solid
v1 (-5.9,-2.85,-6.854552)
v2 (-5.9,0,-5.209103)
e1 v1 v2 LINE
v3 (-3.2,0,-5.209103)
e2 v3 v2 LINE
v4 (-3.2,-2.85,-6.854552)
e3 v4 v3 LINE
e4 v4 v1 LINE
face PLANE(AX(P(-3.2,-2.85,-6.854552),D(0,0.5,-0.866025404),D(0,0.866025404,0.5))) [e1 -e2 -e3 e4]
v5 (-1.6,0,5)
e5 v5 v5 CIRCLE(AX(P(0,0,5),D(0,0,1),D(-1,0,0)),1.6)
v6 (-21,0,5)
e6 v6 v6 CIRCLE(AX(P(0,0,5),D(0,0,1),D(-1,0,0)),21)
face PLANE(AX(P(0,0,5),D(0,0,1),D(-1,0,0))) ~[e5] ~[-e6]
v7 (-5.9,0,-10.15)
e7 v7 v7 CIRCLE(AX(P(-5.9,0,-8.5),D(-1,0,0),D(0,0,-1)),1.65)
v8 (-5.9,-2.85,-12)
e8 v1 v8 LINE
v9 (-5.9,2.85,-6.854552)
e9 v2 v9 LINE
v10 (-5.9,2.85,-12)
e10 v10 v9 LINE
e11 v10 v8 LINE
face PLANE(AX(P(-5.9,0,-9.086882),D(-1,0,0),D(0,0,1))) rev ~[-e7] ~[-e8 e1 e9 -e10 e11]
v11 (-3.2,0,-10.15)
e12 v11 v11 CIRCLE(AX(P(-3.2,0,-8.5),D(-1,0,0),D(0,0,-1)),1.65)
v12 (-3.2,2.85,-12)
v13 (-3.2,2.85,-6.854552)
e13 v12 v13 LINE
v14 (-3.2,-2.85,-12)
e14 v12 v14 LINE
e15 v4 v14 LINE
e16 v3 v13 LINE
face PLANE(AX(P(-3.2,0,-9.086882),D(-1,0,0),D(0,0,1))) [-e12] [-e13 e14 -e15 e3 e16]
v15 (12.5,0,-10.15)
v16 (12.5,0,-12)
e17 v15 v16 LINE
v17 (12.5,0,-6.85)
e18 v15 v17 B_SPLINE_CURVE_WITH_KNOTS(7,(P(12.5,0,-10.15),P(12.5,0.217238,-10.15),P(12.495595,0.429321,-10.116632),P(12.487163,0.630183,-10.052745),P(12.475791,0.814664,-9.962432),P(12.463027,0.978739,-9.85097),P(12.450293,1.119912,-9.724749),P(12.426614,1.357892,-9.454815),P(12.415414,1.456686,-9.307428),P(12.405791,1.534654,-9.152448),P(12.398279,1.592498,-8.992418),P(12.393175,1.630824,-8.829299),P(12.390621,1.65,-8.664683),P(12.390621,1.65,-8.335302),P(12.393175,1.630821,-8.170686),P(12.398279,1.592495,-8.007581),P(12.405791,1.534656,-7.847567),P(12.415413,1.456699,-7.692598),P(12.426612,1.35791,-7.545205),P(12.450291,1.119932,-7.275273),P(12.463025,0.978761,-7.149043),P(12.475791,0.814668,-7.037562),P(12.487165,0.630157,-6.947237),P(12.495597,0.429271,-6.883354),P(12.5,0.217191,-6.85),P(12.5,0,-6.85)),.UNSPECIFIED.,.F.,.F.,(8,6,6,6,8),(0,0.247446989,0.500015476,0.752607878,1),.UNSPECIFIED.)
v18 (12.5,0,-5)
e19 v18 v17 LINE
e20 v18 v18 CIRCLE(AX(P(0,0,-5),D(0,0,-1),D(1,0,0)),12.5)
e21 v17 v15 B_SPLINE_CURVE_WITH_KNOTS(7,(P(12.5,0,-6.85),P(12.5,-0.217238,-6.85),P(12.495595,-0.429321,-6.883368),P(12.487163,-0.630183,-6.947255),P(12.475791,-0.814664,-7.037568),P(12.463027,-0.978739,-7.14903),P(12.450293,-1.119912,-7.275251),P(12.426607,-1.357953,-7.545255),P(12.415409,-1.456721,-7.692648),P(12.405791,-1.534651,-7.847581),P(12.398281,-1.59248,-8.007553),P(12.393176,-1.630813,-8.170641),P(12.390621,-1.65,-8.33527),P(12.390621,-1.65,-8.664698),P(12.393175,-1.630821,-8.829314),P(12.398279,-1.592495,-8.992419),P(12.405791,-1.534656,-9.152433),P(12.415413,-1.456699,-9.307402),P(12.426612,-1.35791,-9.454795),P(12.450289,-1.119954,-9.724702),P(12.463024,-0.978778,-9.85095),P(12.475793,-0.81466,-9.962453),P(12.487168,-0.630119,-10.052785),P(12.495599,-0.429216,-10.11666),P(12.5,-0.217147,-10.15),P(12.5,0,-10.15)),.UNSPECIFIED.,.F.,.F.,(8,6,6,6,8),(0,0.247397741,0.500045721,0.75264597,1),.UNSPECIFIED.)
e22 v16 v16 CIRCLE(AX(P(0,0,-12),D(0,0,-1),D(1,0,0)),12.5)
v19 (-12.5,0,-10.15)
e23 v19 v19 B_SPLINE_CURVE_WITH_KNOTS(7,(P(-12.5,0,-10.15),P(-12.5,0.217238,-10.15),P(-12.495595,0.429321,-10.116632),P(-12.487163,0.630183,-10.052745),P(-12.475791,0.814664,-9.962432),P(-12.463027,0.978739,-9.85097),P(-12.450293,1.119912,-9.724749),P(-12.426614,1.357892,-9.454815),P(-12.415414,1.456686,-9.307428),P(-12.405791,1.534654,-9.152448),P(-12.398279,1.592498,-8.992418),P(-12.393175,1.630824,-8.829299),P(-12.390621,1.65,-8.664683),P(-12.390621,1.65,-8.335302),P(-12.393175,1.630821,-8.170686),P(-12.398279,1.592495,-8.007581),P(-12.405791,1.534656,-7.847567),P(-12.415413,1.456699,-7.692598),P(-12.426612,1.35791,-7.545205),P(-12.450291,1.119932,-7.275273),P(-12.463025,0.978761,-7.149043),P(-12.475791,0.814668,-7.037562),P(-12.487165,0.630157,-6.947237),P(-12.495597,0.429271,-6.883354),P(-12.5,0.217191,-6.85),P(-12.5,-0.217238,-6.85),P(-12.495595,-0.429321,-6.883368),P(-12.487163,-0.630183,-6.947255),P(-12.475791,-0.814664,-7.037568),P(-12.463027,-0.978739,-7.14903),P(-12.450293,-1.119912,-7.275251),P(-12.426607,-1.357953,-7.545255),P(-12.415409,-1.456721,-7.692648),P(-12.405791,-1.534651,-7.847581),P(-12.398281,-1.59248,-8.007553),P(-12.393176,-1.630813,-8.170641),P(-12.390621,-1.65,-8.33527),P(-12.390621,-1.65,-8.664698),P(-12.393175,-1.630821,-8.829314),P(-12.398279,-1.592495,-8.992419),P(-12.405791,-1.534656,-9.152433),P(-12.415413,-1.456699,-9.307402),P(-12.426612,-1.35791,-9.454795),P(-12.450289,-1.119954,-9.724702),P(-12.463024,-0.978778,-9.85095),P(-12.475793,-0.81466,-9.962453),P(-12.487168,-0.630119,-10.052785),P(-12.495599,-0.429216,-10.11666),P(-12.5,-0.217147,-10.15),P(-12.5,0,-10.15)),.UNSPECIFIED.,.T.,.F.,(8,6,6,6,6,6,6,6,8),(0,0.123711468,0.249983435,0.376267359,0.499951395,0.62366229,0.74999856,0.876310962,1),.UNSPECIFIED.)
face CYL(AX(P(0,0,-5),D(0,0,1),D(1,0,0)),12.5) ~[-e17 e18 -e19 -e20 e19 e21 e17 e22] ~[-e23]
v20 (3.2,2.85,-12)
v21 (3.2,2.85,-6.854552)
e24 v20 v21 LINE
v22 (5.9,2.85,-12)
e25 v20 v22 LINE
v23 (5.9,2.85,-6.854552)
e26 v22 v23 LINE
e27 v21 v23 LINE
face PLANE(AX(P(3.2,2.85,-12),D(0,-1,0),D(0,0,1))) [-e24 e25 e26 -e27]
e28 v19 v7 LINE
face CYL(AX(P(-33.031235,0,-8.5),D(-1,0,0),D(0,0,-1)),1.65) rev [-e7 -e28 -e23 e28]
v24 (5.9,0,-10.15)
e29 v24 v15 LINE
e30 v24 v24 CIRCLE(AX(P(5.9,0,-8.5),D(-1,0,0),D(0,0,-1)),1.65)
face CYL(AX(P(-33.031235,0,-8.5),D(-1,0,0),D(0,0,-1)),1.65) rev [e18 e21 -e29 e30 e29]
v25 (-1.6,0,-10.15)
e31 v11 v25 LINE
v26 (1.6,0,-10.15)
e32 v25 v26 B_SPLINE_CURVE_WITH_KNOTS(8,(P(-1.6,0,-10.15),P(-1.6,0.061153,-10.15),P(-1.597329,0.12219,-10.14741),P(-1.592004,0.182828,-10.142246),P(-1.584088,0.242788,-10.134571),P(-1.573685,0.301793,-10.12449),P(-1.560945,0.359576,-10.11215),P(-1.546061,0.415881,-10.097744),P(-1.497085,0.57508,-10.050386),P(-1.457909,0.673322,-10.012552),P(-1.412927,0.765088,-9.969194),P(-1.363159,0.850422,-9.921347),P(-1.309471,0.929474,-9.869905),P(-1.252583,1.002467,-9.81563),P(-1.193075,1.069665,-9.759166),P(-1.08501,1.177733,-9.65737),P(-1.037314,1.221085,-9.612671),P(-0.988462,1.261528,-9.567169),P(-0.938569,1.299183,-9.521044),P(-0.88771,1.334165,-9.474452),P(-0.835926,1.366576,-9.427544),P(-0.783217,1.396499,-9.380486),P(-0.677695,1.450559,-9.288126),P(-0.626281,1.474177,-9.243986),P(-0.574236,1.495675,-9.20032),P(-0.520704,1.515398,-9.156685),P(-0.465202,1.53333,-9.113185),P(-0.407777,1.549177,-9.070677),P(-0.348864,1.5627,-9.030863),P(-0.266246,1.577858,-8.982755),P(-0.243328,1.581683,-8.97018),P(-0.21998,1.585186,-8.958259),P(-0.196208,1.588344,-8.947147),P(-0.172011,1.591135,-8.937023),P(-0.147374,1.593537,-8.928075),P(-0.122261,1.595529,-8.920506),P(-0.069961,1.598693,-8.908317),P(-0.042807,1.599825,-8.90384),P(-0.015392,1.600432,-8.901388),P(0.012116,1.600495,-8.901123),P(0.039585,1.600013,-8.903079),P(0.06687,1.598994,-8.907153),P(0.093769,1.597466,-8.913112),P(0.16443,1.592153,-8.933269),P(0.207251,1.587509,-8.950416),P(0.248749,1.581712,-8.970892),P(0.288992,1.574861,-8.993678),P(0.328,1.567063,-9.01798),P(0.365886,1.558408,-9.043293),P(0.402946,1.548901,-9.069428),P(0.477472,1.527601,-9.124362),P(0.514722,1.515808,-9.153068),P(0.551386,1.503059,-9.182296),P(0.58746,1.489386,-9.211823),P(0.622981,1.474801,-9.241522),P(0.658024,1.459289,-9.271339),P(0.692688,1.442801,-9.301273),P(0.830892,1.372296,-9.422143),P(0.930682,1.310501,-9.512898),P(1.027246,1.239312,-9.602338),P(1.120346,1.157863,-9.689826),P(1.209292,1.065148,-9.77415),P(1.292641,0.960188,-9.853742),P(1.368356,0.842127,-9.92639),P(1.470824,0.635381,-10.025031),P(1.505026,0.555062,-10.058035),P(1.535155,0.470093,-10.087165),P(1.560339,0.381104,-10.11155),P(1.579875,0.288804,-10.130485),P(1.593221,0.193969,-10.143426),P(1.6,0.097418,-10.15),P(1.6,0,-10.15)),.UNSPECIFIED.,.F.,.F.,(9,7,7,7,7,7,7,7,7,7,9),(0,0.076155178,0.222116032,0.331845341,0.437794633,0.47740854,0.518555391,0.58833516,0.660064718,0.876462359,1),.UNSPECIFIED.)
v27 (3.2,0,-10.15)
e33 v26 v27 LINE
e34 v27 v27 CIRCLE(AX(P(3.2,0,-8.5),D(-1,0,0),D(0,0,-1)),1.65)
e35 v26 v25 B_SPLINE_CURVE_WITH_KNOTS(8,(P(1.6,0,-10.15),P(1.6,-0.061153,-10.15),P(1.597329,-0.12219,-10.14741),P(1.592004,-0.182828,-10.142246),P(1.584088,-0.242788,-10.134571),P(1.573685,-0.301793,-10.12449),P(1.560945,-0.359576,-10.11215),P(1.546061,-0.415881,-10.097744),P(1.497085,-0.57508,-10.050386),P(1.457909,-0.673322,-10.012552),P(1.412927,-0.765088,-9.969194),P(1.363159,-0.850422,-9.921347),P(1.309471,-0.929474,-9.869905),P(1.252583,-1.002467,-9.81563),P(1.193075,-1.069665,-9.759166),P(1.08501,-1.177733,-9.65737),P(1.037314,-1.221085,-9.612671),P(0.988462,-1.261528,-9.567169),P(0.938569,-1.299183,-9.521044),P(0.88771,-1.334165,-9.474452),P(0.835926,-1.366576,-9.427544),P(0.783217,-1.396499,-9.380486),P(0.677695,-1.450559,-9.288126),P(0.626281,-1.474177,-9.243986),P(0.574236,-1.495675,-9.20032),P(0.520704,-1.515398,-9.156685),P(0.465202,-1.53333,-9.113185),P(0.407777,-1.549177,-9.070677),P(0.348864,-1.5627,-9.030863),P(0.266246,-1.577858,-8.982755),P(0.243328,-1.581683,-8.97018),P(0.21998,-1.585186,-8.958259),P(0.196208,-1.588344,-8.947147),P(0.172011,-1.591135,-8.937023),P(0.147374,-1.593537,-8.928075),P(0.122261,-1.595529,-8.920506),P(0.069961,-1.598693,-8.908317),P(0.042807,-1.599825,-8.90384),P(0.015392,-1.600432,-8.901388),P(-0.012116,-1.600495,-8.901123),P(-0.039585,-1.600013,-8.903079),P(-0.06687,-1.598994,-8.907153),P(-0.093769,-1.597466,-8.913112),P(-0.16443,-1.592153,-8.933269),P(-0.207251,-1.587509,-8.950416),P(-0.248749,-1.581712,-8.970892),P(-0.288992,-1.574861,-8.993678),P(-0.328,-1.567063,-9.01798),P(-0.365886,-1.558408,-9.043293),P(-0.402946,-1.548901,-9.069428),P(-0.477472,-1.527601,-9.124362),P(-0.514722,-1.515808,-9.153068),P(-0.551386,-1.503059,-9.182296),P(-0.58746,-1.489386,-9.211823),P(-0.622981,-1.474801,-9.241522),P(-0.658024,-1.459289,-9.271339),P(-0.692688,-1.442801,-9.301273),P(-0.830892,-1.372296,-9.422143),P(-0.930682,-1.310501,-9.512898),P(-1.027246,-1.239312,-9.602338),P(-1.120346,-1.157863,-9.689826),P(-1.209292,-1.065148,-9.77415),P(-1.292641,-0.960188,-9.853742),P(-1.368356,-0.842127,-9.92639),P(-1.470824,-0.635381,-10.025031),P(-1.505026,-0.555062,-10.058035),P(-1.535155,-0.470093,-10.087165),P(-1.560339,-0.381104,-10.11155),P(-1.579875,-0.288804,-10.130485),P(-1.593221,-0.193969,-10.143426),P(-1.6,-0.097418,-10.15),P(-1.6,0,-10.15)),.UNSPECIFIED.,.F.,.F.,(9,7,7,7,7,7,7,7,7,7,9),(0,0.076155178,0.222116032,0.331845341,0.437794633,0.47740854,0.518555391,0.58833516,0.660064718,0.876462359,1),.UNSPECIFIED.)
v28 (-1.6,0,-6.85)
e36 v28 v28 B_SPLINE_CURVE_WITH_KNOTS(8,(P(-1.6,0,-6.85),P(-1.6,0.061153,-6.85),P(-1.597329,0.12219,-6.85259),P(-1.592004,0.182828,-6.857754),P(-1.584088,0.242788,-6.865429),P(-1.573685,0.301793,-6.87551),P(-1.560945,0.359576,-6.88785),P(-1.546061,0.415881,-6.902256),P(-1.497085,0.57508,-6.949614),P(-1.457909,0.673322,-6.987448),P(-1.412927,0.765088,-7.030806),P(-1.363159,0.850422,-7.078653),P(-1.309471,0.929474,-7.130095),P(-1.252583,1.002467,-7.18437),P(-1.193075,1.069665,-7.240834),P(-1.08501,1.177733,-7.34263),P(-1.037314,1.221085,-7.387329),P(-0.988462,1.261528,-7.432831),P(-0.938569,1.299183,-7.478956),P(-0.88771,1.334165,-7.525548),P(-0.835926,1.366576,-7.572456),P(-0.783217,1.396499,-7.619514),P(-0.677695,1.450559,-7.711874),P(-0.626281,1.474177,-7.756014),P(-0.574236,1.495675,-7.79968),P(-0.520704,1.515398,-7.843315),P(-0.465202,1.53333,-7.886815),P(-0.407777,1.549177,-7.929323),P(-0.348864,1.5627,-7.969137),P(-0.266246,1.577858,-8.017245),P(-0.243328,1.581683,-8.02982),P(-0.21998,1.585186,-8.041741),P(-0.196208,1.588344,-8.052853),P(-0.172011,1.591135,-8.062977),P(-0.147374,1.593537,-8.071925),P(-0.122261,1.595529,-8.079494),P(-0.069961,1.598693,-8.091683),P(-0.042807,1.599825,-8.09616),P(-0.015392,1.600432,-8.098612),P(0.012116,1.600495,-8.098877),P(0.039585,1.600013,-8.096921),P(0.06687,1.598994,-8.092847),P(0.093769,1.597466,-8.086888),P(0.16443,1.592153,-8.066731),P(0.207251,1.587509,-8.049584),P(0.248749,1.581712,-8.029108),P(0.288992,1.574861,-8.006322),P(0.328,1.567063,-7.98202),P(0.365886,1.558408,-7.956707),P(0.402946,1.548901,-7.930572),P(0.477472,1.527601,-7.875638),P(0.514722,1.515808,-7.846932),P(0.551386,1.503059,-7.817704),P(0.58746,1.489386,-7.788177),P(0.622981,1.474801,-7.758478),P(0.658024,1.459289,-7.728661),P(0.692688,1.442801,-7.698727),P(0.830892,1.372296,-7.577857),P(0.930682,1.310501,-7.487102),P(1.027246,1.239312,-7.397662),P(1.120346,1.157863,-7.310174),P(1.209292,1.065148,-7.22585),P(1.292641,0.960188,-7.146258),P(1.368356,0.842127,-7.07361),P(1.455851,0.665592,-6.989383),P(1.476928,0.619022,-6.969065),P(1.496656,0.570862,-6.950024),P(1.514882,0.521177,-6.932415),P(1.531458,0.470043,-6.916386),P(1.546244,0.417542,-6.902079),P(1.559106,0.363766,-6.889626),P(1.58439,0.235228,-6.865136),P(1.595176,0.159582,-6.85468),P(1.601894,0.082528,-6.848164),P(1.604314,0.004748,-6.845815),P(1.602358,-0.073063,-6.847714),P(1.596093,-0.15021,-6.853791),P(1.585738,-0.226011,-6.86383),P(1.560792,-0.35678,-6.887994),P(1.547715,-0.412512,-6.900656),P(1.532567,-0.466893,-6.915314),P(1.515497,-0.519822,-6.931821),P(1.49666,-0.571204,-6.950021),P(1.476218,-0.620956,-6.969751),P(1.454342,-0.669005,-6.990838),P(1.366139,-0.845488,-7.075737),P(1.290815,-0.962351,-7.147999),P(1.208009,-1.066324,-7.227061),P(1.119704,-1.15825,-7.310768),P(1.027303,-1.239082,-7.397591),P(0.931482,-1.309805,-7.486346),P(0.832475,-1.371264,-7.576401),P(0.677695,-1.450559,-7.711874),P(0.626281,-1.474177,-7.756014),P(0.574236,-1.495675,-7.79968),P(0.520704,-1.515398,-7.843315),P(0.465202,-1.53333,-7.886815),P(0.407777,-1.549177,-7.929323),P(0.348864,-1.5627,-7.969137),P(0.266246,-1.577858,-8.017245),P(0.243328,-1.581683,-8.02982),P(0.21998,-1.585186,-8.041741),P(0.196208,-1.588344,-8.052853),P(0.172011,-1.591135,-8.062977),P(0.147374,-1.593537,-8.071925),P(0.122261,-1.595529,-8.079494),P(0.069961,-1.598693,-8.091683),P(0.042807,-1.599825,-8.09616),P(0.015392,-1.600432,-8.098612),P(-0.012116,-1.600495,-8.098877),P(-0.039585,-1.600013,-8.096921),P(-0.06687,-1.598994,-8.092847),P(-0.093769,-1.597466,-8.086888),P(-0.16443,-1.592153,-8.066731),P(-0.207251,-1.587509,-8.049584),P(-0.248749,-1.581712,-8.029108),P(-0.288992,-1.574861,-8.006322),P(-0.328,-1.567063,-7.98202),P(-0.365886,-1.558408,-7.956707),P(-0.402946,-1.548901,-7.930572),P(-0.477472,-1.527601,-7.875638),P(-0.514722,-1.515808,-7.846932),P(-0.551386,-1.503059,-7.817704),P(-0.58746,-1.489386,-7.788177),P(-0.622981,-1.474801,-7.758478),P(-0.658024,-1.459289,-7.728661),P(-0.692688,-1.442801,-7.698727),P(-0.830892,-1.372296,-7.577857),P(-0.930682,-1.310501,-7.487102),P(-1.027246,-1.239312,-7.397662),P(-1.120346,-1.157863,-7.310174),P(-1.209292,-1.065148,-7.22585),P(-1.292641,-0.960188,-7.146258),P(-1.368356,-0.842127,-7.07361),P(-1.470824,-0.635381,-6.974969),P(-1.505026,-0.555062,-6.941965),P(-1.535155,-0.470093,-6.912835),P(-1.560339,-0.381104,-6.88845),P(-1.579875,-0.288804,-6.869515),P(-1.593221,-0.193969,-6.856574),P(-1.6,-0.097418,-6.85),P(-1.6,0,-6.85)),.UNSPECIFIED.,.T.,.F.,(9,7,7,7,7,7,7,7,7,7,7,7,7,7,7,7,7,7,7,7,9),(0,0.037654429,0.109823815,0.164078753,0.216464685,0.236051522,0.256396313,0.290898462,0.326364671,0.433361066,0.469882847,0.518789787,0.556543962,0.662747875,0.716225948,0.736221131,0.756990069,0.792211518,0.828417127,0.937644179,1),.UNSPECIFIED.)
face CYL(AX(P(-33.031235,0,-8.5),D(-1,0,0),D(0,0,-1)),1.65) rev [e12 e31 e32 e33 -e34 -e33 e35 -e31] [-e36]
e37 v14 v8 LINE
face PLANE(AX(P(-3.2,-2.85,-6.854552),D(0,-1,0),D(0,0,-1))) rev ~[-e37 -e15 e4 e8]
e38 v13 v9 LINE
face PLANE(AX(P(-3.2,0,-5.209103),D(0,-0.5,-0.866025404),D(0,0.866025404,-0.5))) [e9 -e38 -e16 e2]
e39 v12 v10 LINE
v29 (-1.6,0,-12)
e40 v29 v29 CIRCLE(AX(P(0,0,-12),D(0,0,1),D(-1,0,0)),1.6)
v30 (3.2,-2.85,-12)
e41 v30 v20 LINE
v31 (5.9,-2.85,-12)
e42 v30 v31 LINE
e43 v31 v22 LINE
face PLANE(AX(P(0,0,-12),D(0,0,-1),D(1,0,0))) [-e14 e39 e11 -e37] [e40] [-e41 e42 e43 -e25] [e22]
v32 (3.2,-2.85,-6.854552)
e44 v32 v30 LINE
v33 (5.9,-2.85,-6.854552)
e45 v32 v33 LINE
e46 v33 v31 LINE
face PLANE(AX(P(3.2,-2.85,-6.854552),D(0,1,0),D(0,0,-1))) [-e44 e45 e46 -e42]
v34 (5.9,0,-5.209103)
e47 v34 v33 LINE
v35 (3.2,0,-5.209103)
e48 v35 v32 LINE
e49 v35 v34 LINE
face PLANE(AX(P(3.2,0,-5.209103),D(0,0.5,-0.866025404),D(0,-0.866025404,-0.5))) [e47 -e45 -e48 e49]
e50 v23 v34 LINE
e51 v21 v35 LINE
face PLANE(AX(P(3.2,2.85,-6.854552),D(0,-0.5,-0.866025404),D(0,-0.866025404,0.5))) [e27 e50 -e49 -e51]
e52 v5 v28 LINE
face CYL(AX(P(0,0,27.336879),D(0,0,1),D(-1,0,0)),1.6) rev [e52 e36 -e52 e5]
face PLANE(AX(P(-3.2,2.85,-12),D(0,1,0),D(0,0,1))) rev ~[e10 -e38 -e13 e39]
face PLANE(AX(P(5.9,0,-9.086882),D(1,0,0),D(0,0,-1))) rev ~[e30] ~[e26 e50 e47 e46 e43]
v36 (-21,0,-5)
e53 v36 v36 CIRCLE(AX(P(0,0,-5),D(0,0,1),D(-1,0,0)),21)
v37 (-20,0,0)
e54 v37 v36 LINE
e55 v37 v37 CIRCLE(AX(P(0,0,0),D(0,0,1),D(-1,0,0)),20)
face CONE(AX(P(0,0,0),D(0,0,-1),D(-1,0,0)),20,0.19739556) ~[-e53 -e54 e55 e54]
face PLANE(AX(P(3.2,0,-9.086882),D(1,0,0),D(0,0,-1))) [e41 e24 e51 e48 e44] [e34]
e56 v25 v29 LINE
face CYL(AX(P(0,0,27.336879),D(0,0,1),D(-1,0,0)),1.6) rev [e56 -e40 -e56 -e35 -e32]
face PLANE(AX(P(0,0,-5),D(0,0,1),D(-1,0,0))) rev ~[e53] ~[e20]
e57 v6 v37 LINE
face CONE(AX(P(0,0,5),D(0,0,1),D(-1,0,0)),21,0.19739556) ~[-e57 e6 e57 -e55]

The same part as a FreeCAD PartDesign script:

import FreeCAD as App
import Part
import Sketcher
from FreeCAD import Vector
Q = App.Units.Quantity


def add_polygon(sketch, points):
    """Adds a closed chain of lines whose ends are joined by coincident constraints."""
    first, n = sketch.GeometryCount, len(points)
    for a, b in zip(points, points[1:] + points[:1]):
        sketch.addGeometry(Part.LineSegment(App.Vector(*a, 0), App.Vector(*b, 0)), False)
    for i in range(n):
        sketch.addConstraint(Sketcher.Constraint("Coincident", first + i, 2, first + (i + 1) % n, 1))

doc = App.newDocument("Part")
body = doc.addObject("PartDesign::Body", "Body")

sketch1 = doc.addObject("Sketcher::SketchObject", "Sketch")
body.addObject(sketch1)
sketch1.AttachmentSupport = (doc.XZ_Plane, [""])
sketch1.MapMode = "FlatFace"
add_polygon(sketch1, [(0, -5), (0, 5), (21, 5), (20, 0), (21, -5)])
sketch1.addConstraint([
    Sketcher.Constraint("Vertical", 0),
    Sketcher.Constraint("Horizontal", 1),
    Sketcher.Constraint("Horizontal", 4),
    Sketcher.Constraint("Symmetric", 0, 2, 4, 2, -1, 1),
    Sketcher.Constraint("PointOnObject", 2, 2, -1),
    Sketcher.Constraint("Vertical", 1, 2, 3, 2),
    Sketcher.Constraint("DistanceX", 1, 1, 1, 2, 21.0),
    Sketcher.Constraint("DistanceY", 0, 1, 0, 2, 10.0),
    Sketcher.Constraint("DistanceX", -1, 1, 2, 2, 20.0),
])
revolution = doc.addObject("PartDesign::Revolution", "Revolution")
body.addObject(revolution)
revolution.Profile = sketch1
revolution.ReferenceAxis = (sketch1, ["V_Axis"])
revolution.Angle = 360

sketch2 = doc.addObject("Sketcher::SketchObject", "Sketch001")
body.addObject(sketch2)
sketch2.AttachmentSupport = (doc.XY_Plane, [""])
sketch2.MapMode = "FlatFace"
sketch2.AttachmentOffset = App.Placement(Vector(0, 0, -5), App.Rotation())
sketch2.addGeometry(Part.Circle(Vector(0, 0, 0), Vector(0, 0, 1), 12.5), False)
sketch2.addConstraint([
    Sketcher.Constraint("Coincident", 0, 3, -1, 1),
    Sketcher.Constraint("Diameter", 0, 25.0),
])
pad1 = doc.addObject("PartDesign::Pad", "Pad")
body.addObject(pad1)
pad1.Profile = sketch2
pad1.Length = 7
pad1.Reversed = True

sketch3 = doc.addObject("Sketcher::SketchObject", "Sketch002")
body.addObject(sketch3)
sketch3.AttachmentSupport = (doc.XY_Plane, [""])
sketch3.MapMode = "FlatFace"
sketch3.AttachmentOffset = App.Placement(Vector(0, 0, -5), App.Rotation())
sketch3.addGeometry(Part.Circle(Vector(0, 0, 0), Vector(0, 0, 1), 1.6), False)
sketch3.addConstraint([
    Sketcher.Constraint("Coincident", 0, 3, -1, 1),
    Sketcher.Constraint("Diameter", 0, 3.2),
])
pocket1 = doc.addObject("PartDesign::Pocket", "Pocket")
body.addObject(pocket1)
pocket1.Profile = sketch3
pocket1.Type = "ThroughAll"
pocket1.Midplane = True

sketch4 = doc.addObject("Sketcher::SketchObject", "Sketch003")
body.addObject(sketch4)
sketch4.AttachmentSupport = (doc.YZ_Plane, [""])
sketch4.MapMode = "FlatFace"
sketch4.addGeometry(Part.Circle(Vector(0, -8.5, 0), Vector(0, 0, 1), 1.65), False)
sketch4.addConstraint([
    Sketcher.Constraint("PointOnObject", 0, 3, -2),
    Sketcher.Constraint("Diameter", 0, 3.3),
    Sketcher.Constraint("DistanceY", 0, 3, -1, 1, 8.5),
])
pocket2 = doc.addObject("PartDesign::Pocket", "Pocket001")
body.addObject(pocket2)
pocket2.Profile = sketch4
pocket2.Type = "ThroughAll"
pocket2.Midplane = True

sketch5 = doc.addObject("Sketcher::SketchObject", "Sketch004")
body.addObject(sketch5)
sketch5.AttachmentSupport = (doc.YZ_Plane, [""])
sketch5.MapMode = "FlatFace"
sketch5.AttachmentOffset = App.Placement(Vector(0, 0, -3.2), App.Rotation())
add_polygon(sketch5, [(2.85, -12), (2.85, -6.854552), (0, -5.209103), (-2.85, -6.854552), (-2.85, -12)])
sketch5.addConstraint([
    Sketcher.Constraint("Vertical", 0),
    Sketcher.Constraint("Vertical", 3),
    Sketcher.Constraint("Horizontal", 4),
    Sketcher.Constraint("Symmetric", 0, 2, 2, 2, -2),
    Sketcher.Constraint("PointOnObject", 1, 2, -2),
    Sketcher.Constraint("Angle", 1, Q("150 deg")),
    Sketcher.Constraint("DistanceX", 4, 1, 4, 2, 5.7),
    Sketcher.Constraint("DistanceY", 3, 2, -1, 1, 12.0),
    Sketcher.Constraint("DistanceY", 0, 1, 0, 2, 5.145448),
])
pocket3 = doc.addObject("PartDesign::Pocket", "Pocket002")
body.addObject(pocket3)
pocket3.Profile = sketch5
pocket3.Length = 2.7

sketch6 = doc.addObject("Sketcher::SketchObject", "Sketch005")
body.addObject(sketch6)
sketch6.AttachmentSupport = (doc.YZ_Plane, [""])
sketch6.MapMode = "FlatFace"
sketch6.AttachmentOffset = App.Placement(Vector(0, 0, 3.2), App.Rotation())
add_polygon(sketch6, [(2.85, -12), (2.85, -6.854552), (0, -5.209103), (-2.85, -6.854552), (-2.85, -12)])
sketch6.addConstraint([
    Sketcher.Constraint("Vertical", 0),
    Sketcher.Constraint("Vertical", 3),
    Sketcher.Constraint("Horizontal", 4),
    Sketcher.Constraint("Symmetric", 0, 2, 2, 2, -2),
    Sketcher.Constraint("PointOnObject", 1, 2, -2),
    Sketcher.Constraint("Angle", 1, Q("150 deg")),
    Sketcher.Constraint("DistanceX", 4, 1, 4, 2, 5.7),
    Sketcher.Constraint("DistanceY", 3, 2, -1, 1, 12.0),
    Sketcher.Constraint("DistanceY", 0, 1, 0, 2, 5.145448),
])
pocket4 = doc.addObject("PartDesign::Pocket", "Pocket003")
body.addObject(pocket4)
pocket4.Profile = sketch6
pocket4.Length = 2.7
pocket4.Reversed = True

doc.recompute()
